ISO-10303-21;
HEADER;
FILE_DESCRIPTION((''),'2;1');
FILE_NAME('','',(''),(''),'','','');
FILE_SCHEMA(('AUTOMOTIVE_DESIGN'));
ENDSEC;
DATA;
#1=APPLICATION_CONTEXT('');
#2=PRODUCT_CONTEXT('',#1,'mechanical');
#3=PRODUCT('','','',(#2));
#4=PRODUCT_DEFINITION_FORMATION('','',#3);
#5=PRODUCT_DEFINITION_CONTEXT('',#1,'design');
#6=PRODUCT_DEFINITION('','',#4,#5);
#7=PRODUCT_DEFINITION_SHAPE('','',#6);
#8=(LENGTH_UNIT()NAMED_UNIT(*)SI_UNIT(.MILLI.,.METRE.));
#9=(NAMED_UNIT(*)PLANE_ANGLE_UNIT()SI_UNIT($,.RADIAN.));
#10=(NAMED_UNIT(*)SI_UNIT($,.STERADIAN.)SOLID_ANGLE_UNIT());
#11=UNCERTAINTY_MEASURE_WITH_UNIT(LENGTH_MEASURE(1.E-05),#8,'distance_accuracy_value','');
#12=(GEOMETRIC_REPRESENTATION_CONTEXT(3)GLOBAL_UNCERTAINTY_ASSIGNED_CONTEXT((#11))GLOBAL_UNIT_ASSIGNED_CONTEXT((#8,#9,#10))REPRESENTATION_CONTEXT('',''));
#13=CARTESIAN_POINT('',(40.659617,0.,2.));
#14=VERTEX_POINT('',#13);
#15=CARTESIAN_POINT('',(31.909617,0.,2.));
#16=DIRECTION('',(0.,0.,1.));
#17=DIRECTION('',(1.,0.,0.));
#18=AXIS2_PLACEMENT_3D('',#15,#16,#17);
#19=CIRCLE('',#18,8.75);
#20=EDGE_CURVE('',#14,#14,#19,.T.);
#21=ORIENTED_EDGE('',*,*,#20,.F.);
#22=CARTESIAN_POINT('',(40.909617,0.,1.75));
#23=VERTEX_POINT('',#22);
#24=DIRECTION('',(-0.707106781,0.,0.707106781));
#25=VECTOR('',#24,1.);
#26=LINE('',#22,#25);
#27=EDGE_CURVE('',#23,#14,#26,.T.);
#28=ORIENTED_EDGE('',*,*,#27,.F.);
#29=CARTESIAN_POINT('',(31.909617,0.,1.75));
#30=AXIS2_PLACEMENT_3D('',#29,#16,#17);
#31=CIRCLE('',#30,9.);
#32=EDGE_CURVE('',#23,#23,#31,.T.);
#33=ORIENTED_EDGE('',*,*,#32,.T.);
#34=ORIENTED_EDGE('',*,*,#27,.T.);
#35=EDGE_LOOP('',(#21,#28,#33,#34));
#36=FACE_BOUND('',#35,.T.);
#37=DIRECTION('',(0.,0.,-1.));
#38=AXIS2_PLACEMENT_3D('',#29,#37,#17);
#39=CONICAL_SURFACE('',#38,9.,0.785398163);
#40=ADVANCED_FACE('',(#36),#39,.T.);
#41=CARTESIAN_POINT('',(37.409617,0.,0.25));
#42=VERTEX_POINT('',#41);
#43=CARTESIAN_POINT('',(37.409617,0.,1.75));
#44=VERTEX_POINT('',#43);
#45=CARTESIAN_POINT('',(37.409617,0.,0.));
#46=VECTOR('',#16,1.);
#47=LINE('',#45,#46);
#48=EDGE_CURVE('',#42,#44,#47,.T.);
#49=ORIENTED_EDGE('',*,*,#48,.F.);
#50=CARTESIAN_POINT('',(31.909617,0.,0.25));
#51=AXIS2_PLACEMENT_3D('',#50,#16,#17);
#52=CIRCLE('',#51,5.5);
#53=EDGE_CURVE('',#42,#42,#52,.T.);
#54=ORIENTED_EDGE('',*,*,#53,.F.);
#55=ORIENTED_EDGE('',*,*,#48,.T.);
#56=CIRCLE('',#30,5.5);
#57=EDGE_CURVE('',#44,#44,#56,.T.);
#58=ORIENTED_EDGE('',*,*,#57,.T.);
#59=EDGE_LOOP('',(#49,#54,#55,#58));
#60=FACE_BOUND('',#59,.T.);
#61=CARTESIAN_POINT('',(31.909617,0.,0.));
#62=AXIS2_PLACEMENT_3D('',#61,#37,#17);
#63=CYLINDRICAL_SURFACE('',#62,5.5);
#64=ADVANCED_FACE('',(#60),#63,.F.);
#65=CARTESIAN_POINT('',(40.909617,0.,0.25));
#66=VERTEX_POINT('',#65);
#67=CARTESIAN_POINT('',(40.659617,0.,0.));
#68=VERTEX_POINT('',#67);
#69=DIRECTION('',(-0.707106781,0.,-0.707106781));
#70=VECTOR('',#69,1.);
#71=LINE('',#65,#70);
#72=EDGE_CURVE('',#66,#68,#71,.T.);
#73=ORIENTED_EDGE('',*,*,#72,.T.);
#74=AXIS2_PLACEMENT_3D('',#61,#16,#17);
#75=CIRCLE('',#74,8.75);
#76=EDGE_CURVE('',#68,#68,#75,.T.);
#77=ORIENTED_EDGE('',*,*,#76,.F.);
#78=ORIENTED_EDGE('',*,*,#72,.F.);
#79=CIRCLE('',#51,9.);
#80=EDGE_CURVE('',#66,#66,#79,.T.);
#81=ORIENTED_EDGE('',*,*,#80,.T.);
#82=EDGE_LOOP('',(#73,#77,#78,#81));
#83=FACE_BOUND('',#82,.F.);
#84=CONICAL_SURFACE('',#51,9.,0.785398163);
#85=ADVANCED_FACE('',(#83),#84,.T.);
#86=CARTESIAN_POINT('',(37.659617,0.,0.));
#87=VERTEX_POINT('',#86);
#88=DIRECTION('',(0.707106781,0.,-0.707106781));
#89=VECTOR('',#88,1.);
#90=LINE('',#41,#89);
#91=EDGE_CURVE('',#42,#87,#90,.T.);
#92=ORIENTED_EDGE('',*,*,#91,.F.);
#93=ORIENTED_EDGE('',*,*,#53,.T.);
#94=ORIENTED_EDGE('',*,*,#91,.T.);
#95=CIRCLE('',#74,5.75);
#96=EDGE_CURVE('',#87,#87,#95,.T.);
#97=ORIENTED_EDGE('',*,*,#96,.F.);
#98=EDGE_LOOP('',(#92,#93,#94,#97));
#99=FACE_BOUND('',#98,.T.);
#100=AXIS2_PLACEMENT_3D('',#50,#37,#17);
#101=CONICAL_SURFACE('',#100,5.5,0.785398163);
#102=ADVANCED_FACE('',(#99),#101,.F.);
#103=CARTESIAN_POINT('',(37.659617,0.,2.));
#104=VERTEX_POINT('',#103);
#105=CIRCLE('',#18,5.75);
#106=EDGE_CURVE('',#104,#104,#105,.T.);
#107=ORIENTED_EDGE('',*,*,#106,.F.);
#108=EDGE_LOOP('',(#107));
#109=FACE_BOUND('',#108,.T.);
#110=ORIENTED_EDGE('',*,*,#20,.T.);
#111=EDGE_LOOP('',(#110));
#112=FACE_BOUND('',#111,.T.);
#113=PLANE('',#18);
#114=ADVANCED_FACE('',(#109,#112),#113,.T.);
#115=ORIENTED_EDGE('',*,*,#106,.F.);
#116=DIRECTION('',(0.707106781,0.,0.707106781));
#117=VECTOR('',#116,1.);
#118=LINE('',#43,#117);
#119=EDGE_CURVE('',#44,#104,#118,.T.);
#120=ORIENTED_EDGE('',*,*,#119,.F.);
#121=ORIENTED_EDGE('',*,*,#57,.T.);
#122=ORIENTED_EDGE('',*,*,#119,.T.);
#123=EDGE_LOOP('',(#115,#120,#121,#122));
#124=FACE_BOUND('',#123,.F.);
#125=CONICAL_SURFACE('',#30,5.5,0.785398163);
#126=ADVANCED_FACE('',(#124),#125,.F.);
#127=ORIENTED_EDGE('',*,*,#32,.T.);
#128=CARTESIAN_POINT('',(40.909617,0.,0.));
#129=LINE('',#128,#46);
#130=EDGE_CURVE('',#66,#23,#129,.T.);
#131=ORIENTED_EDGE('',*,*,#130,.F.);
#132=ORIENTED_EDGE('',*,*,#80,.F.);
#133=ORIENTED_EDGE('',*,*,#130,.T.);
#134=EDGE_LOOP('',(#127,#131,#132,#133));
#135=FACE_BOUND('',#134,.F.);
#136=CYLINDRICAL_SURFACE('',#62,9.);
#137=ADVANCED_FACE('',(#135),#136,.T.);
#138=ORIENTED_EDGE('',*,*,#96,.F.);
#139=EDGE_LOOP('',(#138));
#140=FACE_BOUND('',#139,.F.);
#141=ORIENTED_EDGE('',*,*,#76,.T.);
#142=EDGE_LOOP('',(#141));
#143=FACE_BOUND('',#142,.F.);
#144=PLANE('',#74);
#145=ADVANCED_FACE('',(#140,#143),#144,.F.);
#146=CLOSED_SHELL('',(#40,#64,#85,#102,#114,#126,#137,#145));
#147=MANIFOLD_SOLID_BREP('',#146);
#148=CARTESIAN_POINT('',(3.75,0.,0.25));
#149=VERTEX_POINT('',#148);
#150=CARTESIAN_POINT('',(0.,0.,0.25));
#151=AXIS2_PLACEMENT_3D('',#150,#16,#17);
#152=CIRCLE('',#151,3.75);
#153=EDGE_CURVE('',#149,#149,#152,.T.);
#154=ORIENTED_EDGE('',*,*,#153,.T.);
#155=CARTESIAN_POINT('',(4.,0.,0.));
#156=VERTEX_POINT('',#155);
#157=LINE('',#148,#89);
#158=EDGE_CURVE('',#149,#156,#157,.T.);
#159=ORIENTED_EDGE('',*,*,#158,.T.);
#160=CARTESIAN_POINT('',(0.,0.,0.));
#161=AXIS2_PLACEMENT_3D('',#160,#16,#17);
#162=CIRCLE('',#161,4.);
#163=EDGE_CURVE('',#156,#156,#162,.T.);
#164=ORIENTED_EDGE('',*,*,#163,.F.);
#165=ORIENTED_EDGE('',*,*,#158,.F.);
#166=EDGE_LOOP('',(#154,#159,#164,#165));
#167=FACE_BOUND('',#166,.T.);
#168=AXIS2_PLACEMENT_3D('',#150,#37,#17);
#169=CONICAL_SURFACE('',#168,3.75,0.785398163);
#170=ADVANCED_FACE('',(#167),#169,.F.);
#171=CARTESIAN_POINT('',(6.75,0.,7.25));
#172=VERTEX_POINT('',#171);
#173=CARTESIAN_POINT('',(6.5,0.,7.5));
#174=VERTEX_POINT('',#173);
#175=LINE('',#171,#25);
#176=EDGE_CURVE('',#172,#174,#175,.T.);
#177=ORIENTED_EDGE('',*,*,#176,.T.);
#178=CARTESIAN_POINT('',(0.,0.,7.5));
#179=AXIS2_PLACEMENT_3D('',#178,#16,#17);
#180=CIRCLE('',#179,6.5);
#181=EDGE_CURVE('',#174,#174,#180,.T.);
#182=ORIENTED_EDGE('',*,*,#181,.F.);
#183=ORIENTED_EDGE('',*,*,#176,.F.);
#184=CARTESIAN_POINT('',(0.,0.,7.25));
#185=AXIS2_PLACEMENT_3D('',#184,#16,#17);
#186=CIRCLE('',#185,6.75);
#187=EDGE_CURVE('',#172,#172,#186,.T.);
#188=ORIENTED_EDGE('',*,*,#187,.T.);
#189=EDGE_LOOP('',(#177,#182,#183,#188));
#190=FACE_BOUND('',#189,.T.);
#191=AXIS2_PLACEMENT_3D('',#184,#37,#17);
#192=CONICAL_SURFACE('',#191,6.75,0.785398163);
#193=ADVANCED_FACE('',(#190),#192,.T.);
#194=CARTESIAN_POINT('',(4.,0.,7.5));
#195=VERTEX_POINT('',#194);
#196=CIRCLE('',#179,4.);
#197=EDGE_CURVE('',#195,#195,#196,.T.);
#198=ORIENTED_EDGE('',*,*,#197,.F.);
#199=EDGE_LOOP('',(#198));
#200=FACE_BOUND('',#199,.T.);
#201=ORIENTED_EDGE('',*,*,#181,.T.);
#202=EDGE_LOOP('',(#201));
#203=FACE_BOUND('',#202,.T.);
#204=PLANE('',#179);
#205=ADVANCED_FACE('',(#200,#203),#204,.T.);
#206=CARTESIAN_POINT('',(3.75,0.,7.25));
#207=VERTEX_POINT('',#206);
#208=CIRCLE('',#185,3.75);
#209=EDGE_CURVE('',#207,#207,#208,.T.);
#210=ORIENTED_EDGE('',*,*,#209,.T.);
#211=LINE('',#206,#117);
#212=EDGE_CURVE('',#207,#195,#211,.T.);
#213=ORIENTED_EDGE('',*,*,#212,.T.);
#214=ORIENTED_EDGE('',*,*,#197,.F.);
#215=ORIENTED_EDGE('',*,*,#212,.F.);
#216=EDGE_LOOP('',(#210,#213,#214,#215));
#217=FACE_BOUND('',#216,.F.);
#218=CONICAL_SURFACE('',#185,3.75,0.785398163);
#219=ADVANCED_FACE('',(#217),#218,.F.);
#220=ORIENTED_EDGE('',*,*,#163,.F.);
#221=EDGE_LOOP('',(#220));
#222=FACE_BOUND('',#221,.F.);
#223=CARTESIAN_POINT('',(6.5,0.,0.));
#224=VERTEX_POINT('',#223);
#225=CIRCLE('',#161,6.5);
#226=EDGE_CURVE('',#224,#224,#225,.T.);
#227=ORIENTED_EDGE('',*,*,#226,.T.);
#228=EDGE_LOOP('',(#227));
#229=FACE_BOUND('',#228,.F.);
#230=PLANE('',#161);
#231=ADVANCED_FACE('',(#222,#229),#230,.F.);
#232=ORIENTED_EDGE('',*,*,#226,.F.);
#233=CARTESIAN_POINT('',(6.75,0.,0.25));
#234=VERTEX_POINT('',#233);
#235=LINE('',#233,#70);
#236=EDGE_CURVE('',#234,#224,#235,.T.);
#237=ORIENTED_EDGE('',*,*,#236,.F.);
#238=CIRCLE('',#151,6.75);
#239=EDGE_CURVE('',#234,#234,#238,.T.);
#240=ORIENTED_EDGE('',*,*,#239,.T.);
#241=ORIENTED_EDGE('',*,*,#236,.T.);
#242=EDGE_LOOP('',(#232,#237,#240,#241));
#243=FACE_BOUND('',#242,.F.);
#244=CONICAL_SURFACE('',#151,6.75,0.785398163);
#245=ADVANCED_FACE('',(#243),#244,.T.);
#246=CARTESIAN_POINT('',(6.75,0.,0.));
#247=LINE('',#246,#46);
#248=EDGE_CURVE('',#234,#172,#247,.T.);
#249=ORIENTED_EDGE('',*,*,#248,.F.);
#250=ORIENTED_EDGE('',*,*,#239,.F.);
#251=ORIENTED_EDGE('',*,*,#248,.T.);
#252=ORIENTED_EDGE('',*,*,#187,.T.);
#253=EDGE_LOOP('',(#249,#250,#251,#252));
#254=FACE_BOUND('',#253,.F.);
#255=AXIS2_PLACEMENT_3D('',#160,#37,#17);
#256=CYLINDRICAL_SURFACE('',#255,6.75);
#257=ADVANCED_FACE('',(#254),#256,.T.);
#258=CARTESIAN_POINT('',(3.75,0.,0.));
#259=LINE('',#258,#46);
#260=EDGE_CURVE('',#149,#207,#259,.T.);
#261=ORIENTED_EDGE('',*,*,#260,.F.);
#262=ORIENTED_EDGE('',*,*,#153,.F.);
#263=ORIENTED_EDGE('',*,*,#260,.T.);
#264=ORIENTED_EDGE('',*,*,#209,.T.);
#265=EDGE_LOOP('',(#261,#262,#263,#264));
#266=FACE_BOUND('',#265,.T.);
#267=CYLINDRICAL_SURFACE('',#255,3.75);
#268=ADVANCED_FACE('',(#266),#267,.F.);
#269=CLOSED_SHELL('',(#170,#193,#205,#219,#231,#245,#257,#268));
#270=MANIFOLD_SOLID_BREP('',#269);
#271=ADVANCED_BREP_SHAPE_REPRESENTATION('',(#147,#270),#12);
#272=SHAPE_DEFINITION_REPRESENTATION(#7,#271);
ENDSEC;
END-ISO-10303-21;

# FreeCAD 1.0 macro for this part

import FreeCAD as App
import Part
import Sketcher
from FreeCAD import Vector
Q = App.Units.Quantity


def edges_at(feature, points):
    """Names of the edges that pass closest to the given points."""
    edges = feature.Shape.Edges
    near = lambda p: min(range(len(edges)), key=lambda i: edges[i].distToShape(Part.Vertex(*p))[0])
    return sorted({f"Edge{near(p) + 1}" for p in points})

doc = App.newDocument("Part")
body = doc.addObject("PartDesign::Body", "Body")

# Sketch on XY plane
sketch1 = body.newObject("Sketcher::SketchObject", "Sketch")
sketch1.AttachmentSupport = (doc.getObject("XY_Plane"), [""])
sketch1.MapMode = "FlatFace"
sketch1.addGeometry([
    Part.Circle(Vector(0, 0, 0), Vector(0, 0, 1), 6.8),
    Part.Circle(Vector(0, 0, 0), Vector(0, 0, 1), 3.8),
], False)
sketch1.addConstraint([
    Sketcher.Constraint("Coincident", 0, 3, -1, 1),
    Sketcher.Constraint("Coincident", 1, 3, -1, 1),
    Sketcher.Constraint("Diameter", 0, Q("13.5 mm")),
    Sketcher.Constraint("Diameter", 1, Q("7.5 mm")),
])
pad1 = body.newObject("PartDesign::Pad", "Pad")
pad1.Profile = sketch1
pad1.Length = 7.5
doc.recompute()

chamfer = body.newObject("PartDesign::Chamfer", "Chamfer")
chamfer.Base = (pad1, edges_at(pad1, [
    (-6.75, 0, 7.5),
    (-3.75, 0, 7.5),
    (-6.75, 0, 0),
    (-3.75, 0, 0),
]))
chamfer.Size = 0.25
body2 = doc.addObject("PartDesign::Body", "Body001")

# Sketch on XY plane
sketch2 = body2.newObject("Sketcher::SketchObject", "Sketch001")
sketch2.AttachmentSupport = (doc.getObject("XY_Plane001"), [""])
sketch2.MapMode = "FlatFace"
sketch2.addGeometry([
    Part.Circle(Vector(32, 0, 0), Vector(0, 0, 1), 9),
    Part.Circle(Vector(32, 0, 0), Vector(0, 0, 1), 6),
], False)
sketch2.addConstraint([
    Sketcher.Constraint("Coincident", 1, 3, 0, 3),
    Sketcher.Constraint("PointOnObject", 0, 3, -1),
    Sketcher.Constraint("Diameter", 0, Q("18 mm")),
    Sketcher.Constraint("Diameter", 1, Q("11 mm")),
    Sketcher.Constraint("DistanceX", -1, 1, 0, 3, Q("31.909617 mm")),
])
pad2 = body2.newObject("PartDesign::Pad", "Pad001")
pad2.Profile = sketch2
pad2.Length = 2
doc.recompute()

chamfer2 = body2.newObject("PartDesign::Chamfer", "Chamfer001")
chamfer2.Base = (pad2, edges_at(pad2, [
    (22.91, 0, 2),
    (26.41, 0, 2),
    (26.41, 0, 0),
    (22.91, 0, 0),
]))
chamfer2.Size = 0.25

doc.recompute()
